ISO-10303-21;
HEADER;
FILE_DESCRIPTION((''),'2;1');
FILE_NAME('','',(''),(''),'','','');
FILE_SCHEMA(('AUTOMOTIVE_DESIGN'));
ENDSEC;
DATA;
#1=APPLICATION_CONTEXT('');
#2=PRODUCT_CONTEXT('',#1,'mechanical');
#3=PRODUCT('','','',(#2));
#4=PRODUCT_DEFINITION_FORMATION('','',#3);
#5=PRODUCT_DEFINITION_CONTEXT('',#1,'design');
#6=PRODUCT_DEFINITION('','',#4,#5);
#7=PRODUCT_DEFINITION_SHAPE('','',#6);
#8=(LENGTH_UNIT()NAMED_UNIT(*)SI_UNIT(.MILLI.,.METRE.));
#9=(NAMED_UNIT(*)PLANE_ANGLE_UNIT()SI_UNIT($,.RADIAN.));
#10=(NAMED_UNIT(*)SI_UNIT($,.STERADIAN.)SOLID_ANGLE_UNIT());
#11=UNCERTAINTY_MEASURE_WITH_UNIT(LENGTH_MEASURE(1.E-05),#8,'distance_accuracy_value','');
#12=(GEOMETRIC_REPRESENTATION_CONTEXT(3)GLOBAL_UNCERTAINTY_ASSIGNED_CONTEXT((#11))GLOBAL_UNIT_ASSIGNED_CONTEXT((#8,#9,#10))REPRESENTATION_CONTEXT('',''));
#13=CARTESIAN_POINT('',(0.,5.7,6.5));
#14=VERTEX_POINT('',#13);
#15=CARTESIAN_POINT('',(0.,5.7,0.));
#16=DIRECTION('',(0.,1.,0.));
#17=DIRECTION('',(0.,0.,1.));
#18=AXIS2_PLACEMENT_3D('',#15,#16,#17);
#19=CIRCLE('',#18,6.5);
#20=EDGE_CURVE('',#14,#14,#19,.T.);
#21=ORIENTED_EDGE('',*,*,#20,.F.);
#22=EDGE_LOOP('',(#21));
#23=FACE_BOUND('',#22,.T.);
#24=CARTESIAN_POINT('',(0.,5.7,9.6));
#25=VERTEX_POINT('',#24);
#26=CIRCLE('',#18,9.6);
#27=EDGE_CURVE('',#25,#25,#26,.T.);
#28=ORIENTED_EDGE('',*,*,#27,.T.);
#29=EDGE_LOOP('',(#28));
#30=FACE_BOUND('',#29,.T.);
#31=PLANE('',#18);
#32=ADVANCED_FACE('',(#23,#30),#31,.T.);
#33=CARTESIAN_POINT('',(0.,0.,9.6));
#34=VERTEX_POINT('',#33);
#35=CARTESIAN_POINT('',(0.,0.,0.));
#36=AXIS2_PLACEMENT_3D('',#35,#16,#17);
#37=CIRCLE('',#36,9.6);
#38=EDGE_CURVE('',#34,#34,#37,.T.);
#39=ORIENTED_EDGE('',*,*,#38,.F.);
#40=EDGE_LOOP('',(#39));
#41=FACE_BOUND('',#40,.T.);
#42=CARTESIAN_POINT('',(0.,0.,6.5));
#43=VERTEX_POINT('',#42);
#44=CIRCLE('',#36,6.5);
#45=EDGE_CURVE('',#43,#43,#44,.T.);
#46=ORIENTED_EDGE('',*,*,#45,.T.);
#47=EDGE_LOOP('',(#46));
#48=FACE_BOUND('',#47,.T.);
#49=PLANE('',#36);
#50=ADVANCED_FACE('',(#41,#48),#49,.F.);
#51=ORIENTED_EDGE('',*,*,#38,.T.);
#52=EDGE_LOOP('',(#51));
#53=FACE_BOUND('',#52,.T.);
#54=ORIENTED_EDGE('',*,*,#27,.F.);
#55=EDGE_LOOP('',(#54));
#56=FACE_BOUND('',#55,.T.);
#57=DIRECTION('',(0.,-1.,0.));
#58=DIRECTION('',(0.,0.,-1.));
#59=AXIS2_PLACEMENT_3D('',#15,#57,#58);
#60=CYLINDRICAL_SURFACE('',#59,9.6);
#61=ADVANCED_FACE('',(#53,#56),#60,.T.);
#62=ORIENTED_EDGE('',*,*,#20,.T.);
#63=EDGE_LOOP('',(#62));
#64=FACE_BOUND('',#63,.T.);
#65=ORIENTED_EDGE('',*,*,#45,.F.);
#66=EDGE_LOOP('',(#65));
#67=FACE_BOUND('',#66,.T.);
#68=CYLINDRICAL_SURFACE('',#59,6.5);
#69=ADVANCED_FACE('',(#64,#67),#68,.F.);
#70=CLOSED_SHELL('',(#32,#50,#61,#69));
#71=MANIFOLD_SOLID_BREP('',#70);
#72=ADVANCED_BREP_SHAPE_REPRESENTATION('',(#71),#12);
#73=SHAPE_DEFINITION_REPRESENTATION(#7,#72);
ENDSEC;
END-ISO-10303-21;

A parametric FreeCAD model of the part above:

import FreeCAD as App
import Part
import Sketcher
from FreeCAD import Vector

doc = App.newDocument("Part")
params = doc.addObject("Spreadsheet::Sheet", "Params")
for row, (alias, value) in enumerate([
    ("sketch1_diameter", "13 mm"),
    ("sketch1_diameter2", "19.2 mm"),
    ("pad1_length", "5.7 mm"),
], start=1):
    params.set(f"A{row}", alias)
    params.set(f"B{row}", "=" + value)
    params.setAlias(f"B{row}", alias)

body = doc.addObject("PartDesign::Body", "Body")

sketch1 = body.newObject("Sketcher::SketchObject", "Sketch")
sketch1.AttachmentSupport = (doc.getObject("XZ_Plane"), [""])
sketch1.MapMode = "FlatFace"
sketch1.addGeometry([
    Part.Circle(Vector(0, 0, 0), Vector(0, 0, 1), 10),
    Part.Circle(Vector(0, 0, 0), Vector(0, 0, 1), 6),
], False)
sketch1.addConstraint([
    Sketcher.Constraint("Coincident", 0, 3, -1, 1),
    Sketcher.Constraint("Coincident", 1, 3, -1, 1),
    Sketcher.Constraint("Diameter", 1, 13.0),
    Sketcher.Constraint("Diameter", 0, 19.2),
])
sketch1.setExpression("Constraints[2]", "Params.sketch1_diameter")
sketch1.setExpression("Constraints[3]", "Params.sketch1_diameter2")
pad1 = body.newObject("PartDesign::Pad", "Pad")
pad1.Profile = sketch1
pad1.setExpression("Length", "Params.pad1_length")
pad1.Reversed = True

doc.recompute()
